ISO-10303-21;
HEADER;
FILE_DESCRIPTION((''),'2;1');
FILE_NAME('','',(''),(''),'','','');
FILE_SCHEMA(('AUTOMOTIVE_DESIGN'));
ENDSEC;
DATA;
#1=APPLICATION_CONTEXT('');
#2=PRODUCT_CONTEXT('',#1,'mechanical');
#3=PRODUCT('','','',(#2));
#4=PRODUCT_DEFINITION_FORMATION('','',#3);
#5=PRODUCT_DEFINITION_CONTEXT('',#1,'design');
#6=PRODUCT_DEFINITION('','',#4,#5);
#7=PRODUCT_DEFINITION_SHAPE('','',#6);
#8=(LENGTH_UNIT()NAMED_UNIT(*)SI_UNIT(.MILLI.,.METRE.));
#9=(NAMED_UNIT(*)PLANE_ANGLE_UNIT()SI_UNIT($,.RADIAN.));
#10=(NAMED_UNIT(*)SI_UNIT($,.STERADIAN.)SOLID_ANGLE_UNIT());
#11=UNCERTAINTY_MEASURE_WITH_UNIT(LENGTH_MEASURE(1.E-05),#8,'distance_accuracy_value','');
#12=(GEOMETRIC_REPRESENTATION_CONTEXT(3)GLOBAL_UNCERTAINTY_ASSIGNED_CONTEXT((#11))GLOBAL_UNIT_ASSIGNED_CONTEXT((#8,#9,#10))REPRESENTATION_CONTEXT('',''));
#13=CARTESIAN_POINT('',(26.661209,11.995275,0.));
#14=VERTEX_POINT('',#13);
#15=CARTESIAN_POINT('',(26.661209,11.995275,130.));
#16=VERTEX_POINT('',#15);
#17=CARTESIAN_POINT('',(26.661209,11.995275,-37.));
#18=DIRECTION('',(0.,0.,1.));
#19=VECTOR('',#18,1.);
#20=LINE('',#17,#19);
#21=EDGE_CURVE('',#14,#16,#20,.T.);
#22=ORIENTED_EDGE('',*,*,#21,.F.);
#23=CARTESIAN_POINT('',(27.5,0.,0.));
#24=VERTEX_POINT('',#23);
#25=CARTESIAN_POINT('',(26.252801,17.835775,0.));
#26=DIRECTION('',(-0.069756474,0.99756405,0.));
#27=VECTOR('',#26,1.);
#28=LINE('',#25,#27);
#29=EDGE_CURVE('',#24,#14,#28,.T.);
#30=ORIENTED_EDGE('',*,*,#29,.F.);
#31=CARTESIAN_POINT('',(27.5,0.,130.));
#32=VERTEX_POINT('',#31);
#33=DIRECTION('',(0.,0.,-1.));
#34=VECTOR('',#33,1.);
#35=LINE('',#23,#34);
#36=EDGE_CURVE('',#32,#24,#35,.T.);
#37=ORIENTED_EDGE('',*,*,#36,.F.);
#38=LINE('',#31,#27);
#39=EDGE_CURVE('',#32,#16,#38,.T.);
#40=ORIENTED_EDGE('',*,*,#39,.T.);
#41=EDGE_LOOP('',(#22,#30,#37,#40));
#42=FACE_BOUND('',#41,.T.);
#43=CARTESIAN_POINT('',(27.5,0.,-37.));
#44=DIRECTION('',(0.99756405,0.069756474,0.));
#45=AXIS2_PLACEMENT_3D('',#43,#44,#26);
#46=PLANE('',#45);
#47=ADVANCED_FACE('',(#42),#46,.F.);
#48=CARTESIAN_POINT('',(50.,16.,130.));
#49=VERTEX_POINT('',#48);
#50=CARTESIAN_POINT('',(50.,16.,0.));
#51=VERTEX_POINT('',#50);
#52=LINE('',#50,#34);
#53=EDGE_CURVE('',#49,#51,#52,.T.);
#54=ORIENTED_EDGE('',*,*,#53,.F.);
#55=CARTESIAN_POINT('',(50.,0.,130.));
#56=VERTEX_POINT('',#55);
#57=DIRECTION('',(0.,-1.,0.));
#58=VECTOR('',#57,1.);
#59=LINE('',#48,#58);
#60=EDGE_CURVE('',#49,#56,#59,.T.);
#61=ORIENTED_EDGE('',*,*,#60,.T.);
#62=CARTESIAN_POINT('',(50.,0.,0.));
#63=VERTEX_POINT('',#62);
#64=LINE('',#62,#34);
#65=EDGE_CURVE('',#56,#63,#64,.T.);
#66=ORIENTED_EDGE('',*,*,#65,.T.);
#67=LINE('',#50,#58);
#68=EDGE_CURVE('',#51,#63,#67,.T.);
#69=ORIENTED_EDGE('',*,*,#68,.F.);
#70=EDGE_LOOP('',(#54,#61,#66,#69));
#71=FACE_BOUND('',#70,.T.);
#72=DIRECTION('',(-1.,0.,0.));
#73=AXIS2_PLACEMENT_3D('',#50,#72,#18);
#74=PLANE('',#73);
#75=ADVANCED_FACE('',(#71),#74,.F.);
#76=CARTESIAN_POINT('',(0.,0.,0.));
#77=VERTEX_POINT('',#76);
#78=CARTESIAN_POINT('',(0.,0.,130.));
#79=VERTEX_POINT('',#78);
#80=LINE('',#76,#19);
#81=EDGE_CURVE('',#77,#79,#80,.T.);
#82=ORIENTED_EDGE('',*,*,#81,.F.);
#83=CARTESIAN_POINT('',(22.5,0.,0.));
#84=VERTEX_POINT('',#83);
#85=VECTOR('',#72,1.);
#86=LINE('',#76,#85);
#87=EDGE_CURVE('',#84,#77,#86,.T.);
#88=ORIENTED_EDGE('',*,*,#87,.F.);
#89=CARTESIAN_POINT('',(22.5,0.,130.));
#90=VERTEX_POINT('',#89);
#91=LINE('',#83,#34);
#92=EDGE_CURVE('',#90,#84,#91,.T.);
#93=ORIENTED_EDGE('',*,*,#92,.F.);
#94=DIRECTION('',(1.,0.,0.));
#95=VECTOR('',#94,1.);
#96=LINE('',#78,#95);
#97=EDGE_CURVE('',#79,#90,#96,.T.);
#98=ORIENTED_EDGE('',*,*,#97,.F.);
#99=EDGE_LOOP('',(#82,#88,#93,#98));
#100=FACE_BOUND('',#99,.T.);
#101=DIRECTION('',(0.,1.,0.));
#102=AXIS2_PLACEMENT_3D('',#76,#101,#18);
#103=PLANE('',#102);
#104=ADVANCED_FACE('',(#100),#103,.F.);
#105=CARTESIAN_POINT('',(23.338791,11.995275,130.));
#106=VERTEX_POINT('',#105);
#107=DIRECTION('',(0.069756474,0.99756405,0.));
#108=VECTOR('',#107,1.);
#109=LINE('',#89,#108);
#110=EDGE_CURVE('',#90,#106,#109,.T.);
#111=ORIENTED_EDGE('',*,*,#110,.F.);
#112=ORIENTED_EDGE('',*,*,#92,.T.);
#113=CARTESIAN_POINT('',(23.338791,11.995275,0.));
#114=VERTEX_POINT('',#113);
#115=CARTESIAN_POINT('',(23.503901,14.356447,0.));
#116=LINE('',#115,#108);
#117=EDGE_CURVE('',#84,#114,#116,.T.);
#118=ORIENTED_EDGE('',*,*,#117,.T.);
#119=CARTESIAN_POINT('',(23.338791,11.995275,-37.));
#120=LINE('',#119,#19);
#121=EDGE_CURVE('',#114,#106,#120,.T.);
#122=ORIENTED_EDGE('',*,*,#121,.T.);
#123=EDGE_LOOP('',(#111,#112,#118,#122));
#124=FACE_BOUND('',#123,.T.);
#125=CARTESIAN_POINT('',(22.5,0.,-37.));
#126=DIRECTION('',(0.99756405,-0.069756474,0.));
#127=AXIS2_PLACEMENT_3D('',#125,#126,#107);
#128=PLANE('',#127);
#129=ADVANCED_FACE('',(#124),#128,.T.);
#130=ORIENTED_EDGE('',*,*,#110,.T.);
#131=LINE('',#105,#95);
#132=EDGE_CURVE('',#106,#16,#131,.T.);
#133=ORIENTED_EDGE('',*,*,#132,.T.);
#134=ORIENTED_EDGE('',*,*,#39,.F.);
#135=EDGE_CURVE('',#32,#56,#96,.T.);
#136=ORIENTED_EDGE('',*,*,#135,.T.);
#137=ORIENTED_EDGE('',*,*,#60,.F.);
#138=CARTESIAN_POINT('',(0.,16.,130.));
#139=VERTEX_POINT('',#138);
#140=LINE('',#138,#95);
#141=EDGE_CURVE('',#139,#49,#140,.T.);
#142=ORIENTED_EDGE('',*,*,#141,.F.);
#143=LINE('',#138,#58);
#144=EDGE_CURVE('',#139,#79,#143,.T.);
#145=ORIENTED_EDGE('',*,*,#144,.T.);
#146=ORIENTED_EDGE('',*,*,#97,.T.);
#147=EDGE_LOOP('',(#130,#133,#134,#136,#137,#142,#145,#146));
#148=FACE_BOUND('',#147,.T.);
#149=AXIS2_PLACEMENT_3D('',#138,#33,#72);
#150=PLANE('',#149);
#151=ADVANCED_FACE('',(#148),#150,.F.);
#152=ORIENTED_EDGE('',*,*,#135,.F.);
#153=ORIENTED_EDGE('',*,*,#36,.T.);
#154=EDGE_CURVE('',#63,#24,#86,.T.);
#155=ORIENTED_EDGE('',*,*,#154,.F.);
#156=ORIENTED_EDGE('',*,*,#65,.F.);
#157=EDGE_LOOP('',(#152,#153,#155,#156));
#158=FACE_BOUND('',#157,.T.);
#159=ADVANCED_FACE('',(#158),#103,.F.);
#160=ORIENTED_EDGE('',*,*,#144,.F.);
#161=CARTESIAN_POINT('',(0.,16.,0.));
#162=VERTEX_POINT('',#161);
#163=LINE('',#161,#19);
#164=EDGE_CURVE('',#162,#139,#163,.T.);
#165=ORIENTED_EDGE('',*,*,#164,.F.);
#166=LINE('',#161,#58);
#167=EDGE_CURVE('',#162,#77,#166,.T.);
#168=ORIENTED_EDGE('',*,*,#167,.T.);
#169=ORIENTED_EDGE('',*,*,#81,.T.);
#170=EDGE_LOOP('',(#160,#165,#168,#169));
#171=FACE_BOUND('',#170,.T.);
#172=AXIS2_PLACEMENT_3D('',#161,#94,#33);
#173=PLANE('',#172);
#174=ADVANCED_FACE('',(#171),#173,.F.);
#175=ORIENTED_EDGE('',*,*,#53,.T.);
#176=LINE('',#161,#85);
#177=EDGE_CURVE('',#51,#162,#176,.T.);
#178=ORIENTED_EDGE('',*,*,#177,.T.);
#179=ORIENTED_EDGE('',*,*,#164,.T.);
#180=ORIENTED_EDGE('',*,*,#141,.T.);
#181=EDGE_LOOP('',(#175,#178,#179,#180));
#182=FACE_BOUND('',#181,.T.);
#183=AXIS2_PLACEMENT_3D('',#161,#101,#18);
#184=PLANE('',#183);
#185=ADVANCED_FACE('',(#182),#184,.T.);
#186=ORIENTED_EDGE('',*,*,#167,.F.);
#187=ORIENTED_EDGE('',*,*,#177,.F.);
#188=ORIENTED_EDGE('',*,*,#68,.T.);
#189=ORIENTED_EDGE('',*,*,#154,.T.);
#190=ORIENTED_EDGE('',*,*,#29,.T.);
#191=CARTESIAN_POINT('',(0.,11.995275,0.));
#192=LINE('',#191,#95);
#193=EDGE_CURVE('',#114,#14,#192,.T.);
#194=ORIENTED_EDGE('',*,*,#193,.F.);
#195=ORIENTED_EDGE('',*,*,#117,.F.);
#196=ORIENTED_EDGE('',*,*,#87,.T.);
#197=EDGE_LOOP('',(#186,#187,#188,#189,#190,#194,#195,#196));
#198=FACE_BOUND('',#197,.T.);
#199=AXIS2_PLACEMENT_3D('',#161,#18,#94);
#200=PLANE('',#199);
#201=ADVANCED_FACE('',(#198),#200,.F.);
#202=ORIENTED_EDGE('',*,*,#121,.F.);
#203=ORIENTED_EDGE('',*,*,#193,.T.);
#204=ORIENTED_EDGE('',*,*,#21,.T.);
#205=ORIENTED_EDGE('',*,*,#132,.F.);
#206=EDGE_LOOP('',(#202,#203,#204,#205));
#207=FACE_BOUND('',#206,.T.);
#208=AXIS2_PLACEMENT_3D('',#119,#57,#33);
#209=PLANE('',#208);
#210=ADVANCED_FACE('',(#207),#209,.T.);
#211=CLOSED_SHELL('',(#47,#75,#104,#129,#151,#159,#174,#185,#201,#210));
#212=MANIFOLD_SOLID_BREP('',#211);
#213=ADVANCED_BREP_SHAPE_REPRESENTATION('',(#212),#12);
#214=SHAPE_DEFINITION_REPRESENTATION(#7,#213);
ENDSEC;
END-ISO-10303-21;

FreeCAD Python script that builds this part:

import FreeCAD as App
import Part
import Sketcher
Q = App.Units.Quantity


def add_polygon(sketch, points):
    """Adds a closed chain of lines whose ends are joined by coincident constraints."""
    first, n = sketch.GeometryCount, len(points)
    for a, b in zip(points, points[1:] + points[:1]):
        sketch.addGeometry(Part.LineSegment(App.Vector(*a, 0), App.Vector(*b, 0)), False)
    for i in range(n):
        sketch.addConstraint(Sketcher.Constraint("Coincident", first + i, 2, first + (i + 1) % n, 1))

doc = App.newDocument("Part")
body = doc.addObject("PartDesign::Body", "Body")

sketch1 = body.newObject("Sketcher::SketchObject", "Sketch")
sketch1.AttachmentSupport = (doc.getObject("XZ_Plane"), [""])
sketch1.MapMode = "FlatFace"
add_polygon(sketch1, [(0, 0), (0, 130), (50, 130), (50, 0)])
sketch1.addConstraint([
    Sketcher.Constraint("Vertical", 0),
    Sketcher.Constraint("Horizontal", 1),
    Sketcher.Constraint("Vertical", 2),
    Sketcher.Constraint("Horizontal", 3),
    Sketcher.Constraint("Coincident", 3, 2, -1, 1),
    Sketcher.Constraint("DistanceX", 1, 1, 1, 2, 50.0),
    Sketcher.Constraint("DistanceY", 0, 1, 0, 2, 130.0),
])
pad1 = body.newObject("PartDesign::Pad", "Pad")
pad1.Profile = sketch1
pad1.Length = 16
pad1.Reversed = True

sketch2 = body.newObject("Sketcher::SketchObject", "Sketch001")
sketch2.AttachmentSupport = (doc.getObject("XY_Plane"), [""])
sketch2.MapMode = "FlatFace"
sketch2.AttachmentOffset = App.Placement(App.Vector(0, 0, 130), App.Rotation())
add_polygon(sketch2, [(22.5, 0), (27.5, 0), (26.7, 12), (23.3, 12)])
sketch2.addConstraint([
    Sketcher.Constraint("Horizontal", 0),
    Sketcher.Constraint("Horizontal", 2),
    Sketcher.Constraint("PointOnObject", 0, 2, -1),
    Sketcher.Constraint("Equal", 1, 3),
    Sketcher.Constraint("DistanceX", 0, 1, 0, 2, 5.0),
    Sketcher.Constraint("Angle", 1, Q("94 deg")),
    Sketcher.Constraint("DistanceX", -1, 1, 0, 2, 27.5),
    Sketcher.Constraint("DistanceX", 2, 2, 2, 1, 3.322417),
])
pocket1 = body.newObject("PartDesign::Pocket", "Pocket")
pocket1.Profile = sketch2
pocket1.Length = 167

doc.recompute()
